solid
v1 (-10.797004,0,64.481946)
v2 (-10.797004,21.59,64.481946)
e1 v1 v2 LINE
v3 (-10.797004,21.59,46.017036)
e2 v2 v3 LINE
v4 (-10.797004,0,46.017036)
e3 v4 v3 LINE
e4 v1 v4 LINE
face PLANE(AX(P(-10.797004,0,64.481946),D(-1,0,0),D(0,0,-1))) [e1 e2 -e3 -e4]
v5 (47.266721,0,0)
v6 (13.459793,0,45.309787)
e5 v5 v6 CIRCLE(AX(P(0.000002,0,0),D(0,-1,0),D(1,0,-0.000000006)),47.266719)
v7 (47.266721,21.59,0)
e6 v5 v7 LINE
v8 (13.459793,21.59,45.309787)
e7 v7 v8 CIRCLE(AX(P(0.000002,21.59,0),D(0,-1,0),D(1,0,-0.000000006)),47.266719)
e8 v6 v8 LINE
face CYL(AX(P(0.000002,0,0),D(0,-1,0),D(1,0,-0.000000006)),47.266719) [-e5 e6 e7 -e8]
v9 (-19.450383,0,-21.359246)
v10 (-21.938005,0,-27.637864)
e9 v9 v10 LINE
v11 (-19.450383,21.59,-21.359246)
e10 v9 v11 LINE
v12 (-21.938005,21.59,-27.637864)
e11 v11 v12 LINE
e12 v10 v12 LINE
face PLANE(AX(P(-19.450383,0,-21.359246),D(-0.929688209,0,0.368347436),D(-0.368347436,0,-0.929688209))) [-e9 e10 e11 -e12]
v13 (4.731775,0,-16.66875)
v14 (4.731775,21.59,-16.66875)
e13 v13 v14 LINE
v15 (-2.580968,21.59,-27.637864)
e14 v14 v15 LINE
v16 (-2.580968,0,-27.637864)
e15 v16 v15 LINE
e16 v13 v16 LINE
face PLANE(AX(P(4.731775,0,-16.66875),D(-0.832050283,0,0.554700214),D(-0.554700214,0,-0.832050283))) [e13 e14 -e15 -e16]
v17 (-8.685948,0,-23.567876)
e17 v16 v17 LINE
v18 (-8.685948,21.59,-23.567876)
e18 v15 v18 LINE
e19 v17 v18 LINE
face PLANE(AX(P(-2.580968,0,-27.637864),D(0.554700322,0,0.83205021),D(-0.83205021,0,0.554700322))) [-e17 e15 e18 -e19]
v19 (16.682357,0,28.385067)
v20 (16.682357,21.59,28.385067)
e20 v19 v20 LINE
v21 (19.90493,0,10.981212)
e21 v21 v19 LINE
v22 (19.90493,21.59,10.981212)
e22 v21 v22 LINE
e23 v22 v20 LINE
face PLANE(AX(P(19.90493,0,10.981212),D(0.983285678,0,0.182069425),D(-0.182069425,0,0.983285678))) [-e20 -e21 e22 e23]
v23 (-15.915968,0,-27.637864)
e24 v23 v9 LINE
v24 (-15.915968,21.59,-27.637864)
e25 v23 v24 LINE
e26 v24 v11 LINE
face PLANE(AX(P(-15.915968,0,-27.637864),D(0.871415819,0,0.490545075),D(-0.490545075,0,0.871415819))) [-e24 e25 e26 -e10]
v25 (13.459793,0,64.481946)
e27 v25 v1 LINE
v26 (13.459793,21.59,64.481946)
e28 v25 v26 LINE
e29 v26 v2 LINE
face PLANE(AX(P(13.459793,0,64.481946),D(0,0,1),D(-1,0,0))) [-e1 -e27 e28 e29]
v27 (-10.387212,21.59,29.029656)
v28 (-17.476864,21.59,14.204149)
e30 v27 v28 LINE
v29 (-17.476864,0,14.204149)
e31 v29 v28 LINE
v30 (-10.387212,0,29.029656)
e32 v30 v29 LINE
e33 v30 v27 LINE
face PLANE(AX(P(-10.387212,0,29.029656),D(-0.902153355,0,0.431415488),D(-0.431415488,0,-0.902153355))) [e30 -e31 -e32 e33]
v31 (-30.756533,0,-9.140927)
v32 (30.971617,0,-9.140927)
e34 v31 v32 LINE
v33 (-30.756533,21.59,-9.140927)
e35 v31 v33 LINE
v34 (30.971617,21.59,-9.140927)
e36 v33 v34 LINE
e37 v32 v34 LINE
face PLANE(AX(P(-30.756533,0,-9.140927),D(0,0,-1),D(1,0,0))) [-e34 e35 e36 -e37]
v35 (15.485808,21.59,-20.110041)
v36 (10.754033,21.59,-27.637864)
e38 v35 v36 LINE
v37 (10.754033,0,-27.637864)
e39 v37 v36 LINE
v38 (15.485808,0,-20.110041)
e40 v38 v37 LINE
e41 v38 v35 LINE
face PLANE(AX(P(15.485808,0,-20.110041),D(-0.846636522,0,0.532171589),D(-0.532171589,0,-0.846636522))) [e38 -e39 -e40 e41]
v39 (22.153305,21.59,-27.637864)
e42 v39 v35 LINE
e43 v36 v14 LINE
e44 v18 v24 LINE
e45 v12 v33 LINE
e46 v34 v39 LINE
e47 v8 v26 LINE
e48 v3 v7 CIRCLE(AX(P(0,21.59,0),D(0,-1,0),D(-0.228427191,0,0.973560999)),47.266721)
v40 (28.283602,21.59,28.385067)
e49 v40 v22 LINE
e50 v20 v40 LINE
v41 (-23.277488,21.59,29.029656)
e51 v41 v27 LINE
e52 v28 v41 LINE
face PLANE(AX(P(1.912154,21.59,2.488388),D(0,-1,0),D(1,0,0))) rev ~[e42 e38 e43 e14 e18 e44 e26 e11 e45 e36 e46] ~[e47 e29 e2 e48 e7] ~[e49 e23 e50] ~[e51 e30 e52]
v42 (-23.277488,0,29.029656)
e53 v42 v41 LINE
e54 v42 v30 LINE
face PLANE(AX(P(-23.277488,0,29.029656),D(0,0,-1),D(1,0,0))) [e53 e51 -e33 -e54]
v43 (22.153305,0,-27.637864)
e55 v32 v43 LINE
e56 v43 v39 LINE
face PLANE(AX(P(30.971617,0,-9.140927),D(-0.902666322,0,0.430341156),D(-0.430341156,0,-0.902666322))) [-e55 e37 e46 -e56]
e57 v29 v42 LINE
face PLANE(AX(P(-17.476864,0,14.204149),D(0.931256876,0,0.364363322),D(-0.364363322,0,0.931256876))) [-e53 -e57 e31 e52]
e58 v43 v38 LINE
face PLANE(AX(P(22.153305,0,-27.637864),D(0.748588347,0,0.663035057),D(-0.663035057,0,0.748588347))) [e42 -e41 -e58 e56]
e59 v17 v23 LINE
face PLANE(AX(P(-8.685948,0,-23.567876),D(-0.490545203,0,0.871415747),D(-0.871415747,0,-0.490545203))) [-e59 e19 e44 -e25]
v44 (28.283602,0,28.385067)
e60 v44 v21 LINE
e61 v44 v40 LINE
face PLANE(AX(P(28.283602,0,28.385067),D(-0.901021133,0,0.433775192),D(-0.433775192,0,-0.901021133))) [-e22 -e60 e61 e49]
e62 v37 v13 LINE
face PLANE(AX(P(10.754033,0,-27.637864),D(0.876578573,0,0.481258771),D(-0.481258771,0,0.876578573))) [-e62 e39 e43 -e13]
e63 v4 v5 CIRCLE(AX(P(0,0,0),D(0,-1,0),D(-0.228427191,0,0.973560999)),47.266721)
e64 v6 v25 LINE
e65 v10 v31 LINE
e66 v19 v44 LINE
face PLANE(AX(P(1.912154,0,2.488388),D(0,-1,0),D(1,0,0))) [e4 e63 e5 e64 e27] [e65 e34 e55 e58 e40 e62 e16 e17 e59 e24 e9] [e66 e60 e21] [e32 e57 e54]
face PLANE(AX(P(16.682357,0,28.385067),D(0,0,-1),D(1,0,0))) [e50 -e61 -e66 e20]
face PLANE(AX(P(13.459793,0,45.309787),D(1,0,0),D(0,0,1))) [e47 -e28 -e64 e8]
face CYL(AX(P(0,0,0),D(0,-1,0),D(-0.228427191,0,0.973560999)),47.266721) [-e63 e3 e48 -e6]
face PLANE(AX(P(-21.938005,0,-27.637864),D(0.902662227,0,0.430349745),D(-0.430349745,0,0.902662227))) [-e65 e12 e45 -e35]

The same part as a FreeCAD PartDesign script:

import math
import FreeCAD as App
import Part
import Sketcher

V = App.Vector
Q = App.Units.Quantity


def add_polygon(sketch, points):
    """Adds a closed chain of lines whose ends are joined by coincident constraints."""
    first, n = sketch.GeometryCount, len(points)
    for a, b in zip(points, points[1:] + points[:1]):
        sketch.addGeometry(Part.LineSegment(App.Vector(*a, 0), App.Vector(*b, 0)), False)
    for i in range(n):
        sketch.addConstraint(Sketcher.Constraint("Coincident", first + i, 2, first + (i + 1) % n, 1))

doc = App.newDocument("Part")
params = doc.addObject("Spreadsheet::Sheet", "Params")
for row, (alias, value) in enumerate([
    ("pad1_length", "0.85 in"),
], start=1):
    params.set(f"A{row}", alias)
    params.set(f"B{row}", "=" + value)
    params.setAlias(f"B{row}", alias)

body = doc.addObject("PartDesign::Body", "Body")

# Sketch on XZ plane
sketch1 = doc.addObject("Sketcher::SketchObject", "Sketch")
body.addObject(sketch1)
sketch1.AttachmentSupport = (doc.XZ_Plane, [""])
sketch1.MapMode = "FlatFace"
sketch1.addGeometry(Part.ArcOfCircle(Part.Circle(V(0, 0, 0), V(0, 0, 1), 47), math.radians(103), math.radians(360)), False)  # 0
sketch1.addGeometry(Part.ArcOfCircle(Part.Circle(V(0, 0, 0), V(0, 0, 1), 47), math.radians(0), math.radians(73)), False)  # 1
sketch1.addGeometry(Part.LineSegment(V(13, 45, 0), V(13, 64, 0)), False)  # 2
sketch1.addGeometry(Part.LineSegment(V(13, 64, 0), V(-11, 64, 0)), False)  # 3
sketch1.addGeometry(Part.LineSegment(V(-11, 64, 0), V(-11, 46, 0)), False)  # 4
add_polygon(sketch1, [(-19, -21), (-22, -28), (-31, -9), (31, -9), (22, -28), (15, -20), (11, -28), (5, -17), (-3, -28), (-9, -24), (-16, -28)])  # lines 5-15
add_polygon(sketch1, [(-10, 29), (-17, 14), (-23, 29)])  # lines 16-18
add_polygon(sketch1, [(28, 28), (20, 11), (17, 28)])  # lines 19-21
sketch1.addConstraint([
    Sketcher.Constraint("Tangent", 0, 2, 1, 1),
    Sketcher.Constraint("Coincident", 1, 2, 2, 1),
    Sketcher.Constraint("Coincident", 2, 2, 3, 1),
    Sketcher.Constraint("Coincident", 3, 2, 4, 1),
    Sketcher.Constraint("Coincident", 4, 2, 0, 1),
    Sketcher.Constraint("Vertical", 2),
    Sketcher.Constraint("Horizontal", 3),
    Sketcher.Constraint("Vertical", 4),
    Sketcher.Constraint("Horizontal", 7),
    Sketcher.Constraint("Horizontal", 18),
    Sketcher.Constraint("Horizontal", 21),
    Sketcher.Constraint("Coincident", 0, 3, -1, 1),
    Sketcher.Constraint("Equal", 0, 1),
    Sketcher.Constraint("PointOnObject", 0, 2, -1),
    Sketcher.Constraint("Perpendicular", 12, 13),
    Sketcher.Constraint("Perpendicular", 14, 15),
    Sketcher.Constraint("Horizontal", 5, 2, 8, 2),
    Sketcher.Constraint("Horizontal", 8, 2, 10, 2),
    Sketcher.Constraint("Horizontal", 10, 2, 12, 2),
    Sketcher.Constraint("Horizontal", 12, 2, 14, 2),
    Sketcher.Constraint("DistanceY", 11, 2, -1, 1, Q("0.65625 in")),
    Sketcher.Constraint("Radius", 0, 47.266721),
    Sketcher.Constraint("DistanceX", 12, 2, 10, 2, Q("0.525 in")),
    Sketcher.Constraint("DistanceX", 14, 2, 12, 2, Q("0.525 in")),
    Sketcher.Constraint("DistanceY", -1, 1, 17, 2, Q("1.1428998 in")),
    Sketcher.Constraint("DistanceX", 9, 2, 8, 2, Q("0.2624999 in")),
    Sketcher.Constraint("Distance", 19, 19.315701),
    Sketcher.Constraint("DistanceX", 7, 1, 7, 2, 61.72815),
    Sketcher.Constraint("DistanceY", 2, 1, 2, 2, 19.172159),
    Sketcher.Constraint("DistanceY", 4, 2, 4, 1, 18.46491),
    Sketcher.Constraint("DistanceX", -1, 1, 21, 2, 28.283602),
    Sketcher.Constraint("DistanceX", 5, 2, 4, 2, 11.141001),
    Sketcher.Constraint("DistanceY", 5, 2, 4, 2, 73.6549),
    Sketcher.Constraint("Distance", 17, 15.91989),
    Sketcher.Constraint("DistanceX", 3, 2, 3, 1, 24.256797),
    Sketcher.Constraint("DistanceX", 18, 1, 18, 2, 12.890276),
    Sketcher.Constraint("DistanceX", 21, 1, 21, 2, 11.601245),
    Sketcher.Constraint("DistanceY", 9, 2, -1, 1, 20.110041),
    Sketcher.Constraint("DistanceY", -1, 1, 16, 2, 14.204149),
    Sketcher.Constraint("DistanceX", 17, 2, -1, 1, 23.277488),
    Sketcher.Constraint("DistanceX", -1, 1, 19, 2, 19.90493),
    Sketcher.Constraint("DistanceY", -1, 1, 19, 2, 10.981212),
    Sketcher.Constraint("DistanceX", 6, 2, 4, 2, 19.959529),
    Sketcher.Constraint("DistanceX", 8, 2, 7, 2, 8.818312),
    Sketcher.Constraint("DistanceX", 1, 3, 10, 2, 10.754031),
    Sketcher.Constraint("DistanceX", 11, 2, 8, 2, 17.42153),
    Sketcher.Constraint("DistanceX", 13, 2, 12, 2, 6.10498),
    Sketcher.Constraint("DistanceY", 5, 2, 15, 2, 6.278618),
    Sketcher.Constraint("DistanceY", 15, 2, 6, 2, 12.218319),
])
pad1 = doc.addObject("PartDesign::Pad", "Pad")
body.addObject(pad1)
pad1.Profile = sketch1
pad1.setExpression("Length", "Params.pad1_length")
pad1.Reversed = True

doc.recompute()
